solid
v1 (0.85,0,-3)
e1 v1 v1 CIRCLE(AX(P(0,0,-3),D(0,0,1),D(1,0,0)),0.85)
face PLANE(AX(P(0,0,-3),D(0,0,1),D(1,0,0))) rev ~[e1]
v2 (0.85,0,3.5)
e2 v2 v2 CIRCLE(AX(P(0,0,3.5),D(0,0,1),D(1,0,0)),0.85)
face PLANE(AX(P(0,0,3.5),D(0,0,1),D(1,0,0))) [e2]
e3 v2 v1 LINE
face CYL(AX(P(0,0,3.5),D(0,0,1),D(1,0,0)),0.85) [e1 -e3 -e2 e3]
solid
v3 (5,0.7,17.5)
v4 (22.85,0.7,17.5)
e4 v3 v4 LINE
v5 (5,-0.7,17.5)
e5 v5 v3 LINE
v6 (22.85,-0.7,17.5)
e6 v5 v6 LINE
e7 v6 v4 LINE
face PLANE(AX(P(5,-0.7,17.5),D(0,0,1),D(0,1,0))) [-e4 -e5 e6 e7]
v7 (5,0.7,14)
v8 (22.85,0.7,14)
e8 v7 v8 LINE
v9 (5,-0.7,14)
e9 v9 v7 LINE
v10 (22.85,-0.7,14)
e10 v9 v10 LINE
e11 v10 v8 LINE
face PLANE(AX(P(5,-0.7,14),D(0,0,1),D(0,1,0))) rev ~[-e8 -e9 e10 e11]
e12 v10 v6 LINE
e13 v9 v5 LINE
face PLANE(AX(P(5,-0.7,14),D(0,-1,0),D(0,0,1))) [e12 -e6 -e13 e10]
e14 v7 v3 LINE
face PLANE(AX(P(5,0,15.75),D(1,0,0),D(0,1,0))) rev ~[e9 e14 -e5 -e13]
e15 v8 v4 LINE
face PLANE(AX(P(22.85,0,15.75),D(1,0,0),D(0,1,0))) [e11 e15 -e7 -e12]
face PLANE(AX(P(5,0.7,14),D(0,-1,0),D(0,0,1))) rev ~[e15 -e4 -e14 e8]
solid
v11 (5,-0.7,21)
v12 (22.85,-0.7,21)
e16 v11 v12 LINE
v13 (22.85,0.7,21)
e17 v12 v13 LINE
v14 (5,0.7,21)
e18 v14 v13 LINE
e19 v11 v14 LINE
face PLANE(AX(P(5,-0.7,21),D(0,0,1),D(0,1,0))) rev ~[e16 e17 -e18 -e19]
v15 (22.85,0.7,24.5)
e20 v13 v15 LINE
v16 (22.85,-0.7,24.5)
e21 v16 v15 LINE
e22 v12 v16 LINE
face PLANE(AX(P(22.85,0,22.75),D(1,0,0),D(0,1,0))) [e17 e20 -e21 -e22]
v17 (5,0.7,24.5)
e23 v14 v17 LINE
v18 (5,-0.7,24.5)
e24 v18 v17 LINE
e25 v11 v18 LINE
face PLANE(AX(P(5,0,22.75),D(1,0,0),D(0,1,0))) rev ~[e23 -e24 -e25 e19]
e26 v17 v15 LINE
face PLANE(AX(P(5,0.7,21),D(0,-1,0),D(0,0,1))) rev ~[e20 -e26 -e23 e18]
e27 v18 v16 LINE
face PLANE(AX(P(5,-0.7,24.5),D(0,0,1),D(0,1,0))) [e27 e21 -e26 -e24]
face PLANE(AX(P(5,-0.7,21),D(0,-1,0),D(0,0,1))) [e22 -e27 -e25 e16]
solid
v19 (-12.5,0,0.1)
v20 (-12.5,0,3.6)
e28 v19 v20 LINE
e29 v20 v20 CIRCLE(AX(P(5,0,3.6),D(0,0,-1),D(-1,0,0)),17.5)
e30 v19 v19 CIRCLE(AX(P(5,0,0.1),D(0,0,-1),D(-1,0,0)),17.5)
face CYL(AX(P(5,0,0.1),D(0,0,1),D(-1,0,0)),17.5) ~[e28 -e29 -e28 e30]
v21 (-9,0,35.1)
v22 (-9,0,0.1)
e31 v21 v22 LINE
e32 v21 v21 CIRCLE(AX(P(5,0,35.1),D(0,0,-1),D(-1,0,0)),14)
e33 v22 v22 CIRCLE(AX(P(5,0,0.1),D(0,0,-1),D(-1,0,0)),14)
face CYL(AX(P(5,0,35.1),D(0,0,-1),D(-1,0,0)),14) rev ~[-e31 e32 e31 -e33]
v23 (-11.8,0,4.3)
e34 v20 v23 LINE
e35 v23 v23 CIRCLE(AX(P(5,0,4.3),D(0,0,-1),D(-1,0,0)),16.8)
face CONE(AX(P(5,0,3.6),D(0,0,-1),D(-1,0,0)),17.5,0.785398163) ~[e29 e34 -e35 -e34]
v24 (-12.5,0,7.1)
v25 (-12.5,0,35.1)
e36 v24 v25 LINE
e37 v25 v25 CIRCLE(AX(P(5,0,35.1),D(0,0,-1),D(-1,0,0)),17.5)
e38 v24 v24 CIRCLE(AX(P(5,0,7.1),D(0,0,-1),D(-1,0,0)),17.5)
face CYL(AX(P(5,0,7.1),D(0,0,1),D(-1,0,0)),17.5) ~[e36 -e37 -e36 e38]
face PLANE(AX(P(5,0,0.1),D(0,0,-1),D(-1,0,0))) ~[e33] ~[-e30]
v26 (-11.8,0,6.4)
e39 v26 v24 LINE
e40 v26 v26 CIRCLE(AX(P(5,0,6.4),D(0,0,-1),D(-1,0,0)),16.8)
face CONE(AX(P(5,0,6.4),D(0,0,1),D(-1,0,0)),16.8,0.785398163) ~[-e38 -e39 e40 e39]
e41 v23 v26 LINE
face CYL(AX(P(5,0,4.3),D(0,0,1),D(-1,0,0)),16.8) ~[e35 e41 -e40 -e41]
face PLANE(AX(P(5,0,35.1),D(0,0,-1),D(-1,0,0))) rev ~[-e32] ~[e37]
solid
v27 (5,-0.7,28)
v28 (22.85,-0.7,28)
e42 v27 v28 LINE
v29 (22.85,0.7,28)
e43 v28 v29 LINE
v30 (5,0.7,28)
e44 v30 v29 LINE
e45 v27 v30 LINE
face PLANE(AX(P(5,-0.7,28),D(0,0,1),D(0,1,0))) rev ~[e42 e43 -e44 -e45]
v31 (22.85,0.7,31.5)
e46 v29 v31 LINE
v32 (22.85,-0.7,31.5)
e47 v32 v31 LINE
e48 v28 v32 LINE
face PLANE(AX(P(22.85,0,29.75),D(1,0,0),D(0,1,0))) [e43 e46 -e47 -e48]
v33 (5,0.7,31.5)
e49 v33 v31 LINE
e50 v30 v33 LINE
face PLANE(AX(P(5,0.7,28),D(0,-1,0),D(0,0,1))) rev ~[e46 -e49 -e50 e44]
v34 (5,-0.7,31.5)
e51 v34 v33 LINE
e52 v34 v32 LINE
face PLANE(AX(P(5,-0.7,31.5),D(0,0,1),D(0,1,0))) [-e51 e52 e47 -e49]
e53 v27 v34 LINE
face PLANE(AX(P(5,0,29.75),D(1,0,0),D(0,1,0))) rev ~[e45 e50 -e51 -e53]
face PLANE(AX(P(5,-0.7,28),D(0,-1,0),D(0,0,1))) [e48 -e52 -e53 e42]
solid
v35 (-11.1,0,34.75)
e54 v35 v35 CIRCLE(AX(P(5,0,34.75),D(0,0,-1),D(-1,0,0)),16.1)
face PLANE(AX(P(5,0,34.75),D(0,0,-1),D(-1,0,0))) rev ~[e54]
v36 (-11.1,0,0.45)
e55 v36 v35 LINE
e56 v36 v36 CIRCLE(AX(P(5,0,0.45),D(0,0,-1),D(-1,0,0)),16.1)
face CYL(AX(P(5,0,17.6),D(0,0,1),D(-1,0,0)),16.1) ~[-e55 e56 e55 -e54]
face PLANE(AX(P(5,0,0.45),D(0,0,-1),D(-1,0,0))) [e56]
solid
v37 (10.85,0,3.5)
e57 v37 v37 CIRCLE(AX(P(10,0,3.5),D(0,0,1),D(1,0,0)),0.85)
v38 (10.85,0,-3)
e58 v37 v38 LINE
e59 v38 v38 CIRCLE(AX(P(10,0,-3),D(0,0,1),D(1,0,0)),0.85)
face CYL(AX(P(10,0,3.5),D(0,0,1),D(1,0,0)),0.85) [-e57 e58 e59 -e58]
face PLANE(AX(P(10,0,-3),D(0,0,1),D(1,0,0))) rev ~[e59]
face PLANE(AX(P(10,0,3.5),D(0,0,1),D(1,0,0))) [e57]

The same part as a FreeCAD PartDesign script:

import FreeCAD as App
import Part
import Sketcher

V = App.Vector
Q = App.Units.Quantity


def add_polygon(sketch, points):
    """Adds a closed chain of lines whose ends are joined by coincident constraints."""
    first, n = sketch.GeometryCount, len(points)
    for a, b in zip(points, points[1:] + points[:1]):
        sketch.addGeometry(Part.LineSegment(App.Vector(*a, 0), App.Vector(*b, 0)), False)
    for i in range(n):
        sketch.addConstraint(Sketcher.Constraint("Coincident", first + i, 2, first + (i + 1) % n, 1))

doc = App.newDocument("Part")
body = doc.addObject("PartDesign::Body", "Body")

# Sketch on XZ plane
sketch1 = body.newObject("Sketcher::SketchObject", "Sketch")
sketch1.AttachmentSupport = (doc.getObject("XZ_Plane"), [""])
sketch1.MapMode = "FlatFace"
add_polygon(sketch1, [(-12.5, 3.6), (-12.5, 0.1), (-9, 0.1), (-9, 35.1), (-12.5, 35.1), (-12.5, 7.1), (-11.8, 6.4), (-11.8, 4.3)])  # lines 0-7
sketch1.addGeometry(Part.LineSegment(V(5, 35.1, 0), V(5, 0.1, 0)), True)  # axis
sketch1.addConstraint(Sketcher.Constraint("Vertical", 0))
sketch1.addConstraint(Sketcher.Constraint("Horizontal", 1))
sketch1.addConstraint(Sketcher.Constraint("Vertical", 2))
sketch1.addConstraint(Sketcher.Constraint("Horizontal", 3))
sketch1.addConstraint(Sketcher.Constraint("Vertical", 4))
sketch1.addConstraint(Sketcher.Constraint("Vertical", 6))
sketch1.addConstraint(Sketcher.Constraint("Vertical", 8))
sketch1.addConstraint(Sketcher.Constraint("Perpendicular", 5, 7))
sketch1.addConstraint(Sketcher.Constraint("Horizontal", 3, 2, 8, 1))
sketch1.addConstraint(Sketcher.Constraint("Horizontal", 1, 2, 8, 2))
sketch1.addConstraint(Sketcher.Constraint("Vertical", 0, 2, 3, 2))
sketch1.addConstraint(Sketcher.Constraint("Equal", 3, 0))
sketch1.addConstraint(Sketcher.Constraint("Equal", 5, 7))
sketch1.addConstraint(Sketcher.Constraint("DistanceY", 2, 1, 2, 2, Q("35 mm")))
sketch1.addConstraint(Sketcher.Constraint("DistanceY", 4, 2, 4, 1, Q("28 mm")))
sketch1.addConstraint(Sketcher.Constraint("DistanceX", 1, 1, 1, 2, Q("3.5 mm")))
sketch1.addConstraint(Sketcher.Constraint("DistanceY", 6, 2, 6, 1, Q("2.1 mm")))
sketch1.addConstraint(Sketcher.Constraint("DistanceX", 1, 2, -1, 1, Q("9 mm")))
sketch1.addConstraint(Sketcher.Constraint("DistanceX", -1, 1, 8, 1, Q("5 mm")))
sketch1.addConstraint(Sketcher.Constraint("DistanceY", -1, 1, 0, 2, Q("0.1 mm")))
revolution = body.newObject("PartDesign::Revolution", "Revolution")
revolution.Profile = sketch1
revolution.ReferenceAxis = (sketch1, ["Axis0"])
revolution.Angle = 360
body2 = doc.addObject("PartDesign::Body", "Body001")

# Sketch on XZ plane
sketch2 = body2.newObject("Sketcher::SketchObject", "Sketch001")
sketch2.AttachmentSupport = (doc.getObject("XZ_Plane001"), [""])
sketch2.MapMode = "FlatFace"
add_polygon(sketch2, [(-11, 35), (-11, 0), (5, 0), (5, 35)])  # lines 0-3
sketch2.addGeometry(Part.LineSegment(V(5, 35, 0), V(5, 0, 0)), True)  # axis
sketch2.addConstraint(Sketcher.Constraint("Vertical", 0))
sketch2.addConstraint(Sketcher.Constraint("Horizontal", 1))
sketch2.addConstraint(Sketcher.Constraint("Vertical", 2))
sketch2.addConstraint(Sketcher.Constraint("Horizontal", 3))
sketch2.addConstraint(Sketcher.Constraint("Vertical", 4))
sketch2.addConstraint(Sketcher.Constraint("Coincident", 4, 1, 2, 2))
sketch2.addConstraint(Sketcher.Constraint("Horizontal", 0, 2, 4, 2))
sketch2.addConstraint(Sketcher.Constraint("DistanceX", 1, 1, 1, 2, Q("16.1 mm")))
sketch2.addConstraint(Sketcher.Constraint("DistanceY", 0, 2, 0, 1, Q("34.3 mm")))
sketch2.addConstraint(Sketcher.Constraint("DistanceX", -1, 1, 1, 2, Q("5 mm")))
sketch2.addConstraint(Sketcher.Constraint("DistanceY", -1, 1, 0, 2, Q("0.45 mm")))
revolution2 = body2.newObject("PartDesign::Revolution", "Revolution001")
revolution2.Profile = sketch2
revolution2.ReferenceAxis = (sketch2, ["Axis0"])
revolution2.Angle = 360
body3 = doc.addObject("PartDesign::Body", "Body002")
body3.AllowCompound = True

# Sketch on XY plane
sketch3 = body3.newObject("Sketcher::SketchObject", "Sketch002")
sketch3.AttachmentSupport = (doc.getObject("XY_Plane002"), [""])
sketch3.MapMode = "FlatFace"
sketch3.AttachmentOffset = App.Placement(V(0, 0, 3.5), App.Rotation())
sketch3.addGeometry(Part.Circle(V(0, 0, 0), V(0, 0, 1), 0.8), False)
sketch3.addGeometry(Part.Circle(V(10, 0, 0), V(0, 0, 1), 0.8), False)
sketch3.addConstraint(Sketcher.Constraint("Coincident", 0, 3, -1, 1))
sketch3.addConstraint(Sketcher.Constraint("Equal", 0, 1))
sketch3.addConstraint(Sketcher.Constraint("PointOnObject", 1, 3, -1))
sketch3.addConstraint(Sketcher.Constraint("Diameter", 0, Q("1.7 mm")))
sketch3.addConstraint(Sketcher.Constraint("DistanceX", -1, 1, 1, 3, Q("10 mm")))
pad1 = body3.newObject("PartDesign::Pad", "Pad")
pad1.Profile = sketch3
pad1.Length = 6.5
pad1.Reversed = True
body4 = doc.addObject("PartDesign::Body", "Body003")
body4.AllowCompound = True

# Sketch on YZ plane
sketch4 = body4.newObject("Sketcher::SketchObject", "Sketch003")
sketch4.AttachmentSupport = (doc.getObject("YZ_Plane003"), [""])
sketch4.MapMode = "FlatFace"
sketch4.AttachmentOffset = App.Placement(V(0, 0, 5), App.Rotation())
add_polygon(sketch4, [(-0.7, 17.5), (-0.7, 14), (0.7, 14), (0.7, 17.5)])  # lines 0-3
add_polygon(sketch4, [(-0.7, 24.5), (-0.7, 21), (0.7, 21), (0.7, 24.5)])  # lines 4-7
add_polygon(sketch4, [(-0.7, 31.5), (-0.7, 28), (0.7, 28), (0.7, 31.5)])  # lines 8-11
sketch4.addConstraint(Sketcher.Constraint("Vertical", 0))
sketch4.addConstraint(Sketcher.Constraint("Horizontal", 1))
sketch4.addConstraint(Sketcher.Constraint("Vertical", 2))
sketch4.addConstraint(Sketcher.Constraint("Horizontal", 3))
sketch4.addConstraint(Sketcher.Constraint("Vertical", 4))
sketch4.addConstraint(Sketcher.Constraint("Horizontal", 5))
sketch4.addConstraint(Sketcher.Constraint("Vertical", 6))
sketch4.addConstraint(Sketcher.Constraint("Horizontal", 7))
sketch4.addConstraint(Sketcher.Constraint("Vertical", 8))
sketch4.addConstraint(Sketcher.Constraint("Horizontal", 9))
sketch4.addConstraint(Sketcher.Constraint("Vertical", 10))
sketch4.addConstraint(Sketcher.Constraint("Horizontal", 11))
sketch4.addConstraint(Sketcher.Constraint("Vertical", 3, 2, 4, 2))
sketch4.addConstraint(Sketcher.Constraint("Vertical", 2, 2, 5, 2))
sketch4.addConstraint(Sketcher.Constraint("Vertical", 7, 2, 8, 2))
sketch4.addConstraint(Sketcher.Constraint("Vertical", 6, 2, 9, 2))
sketch4.addConstraint(Sketcher.Constraint("Equal", 2, 4))
sketch4.addConstraint(Sketcher.Constraint("Equal", 6, 8))
sketch4.addConstraint(Sketcher.Constraint("DistanceX", 1, 1, 1, 2, Q("1.4 mm")))
sketch4.addConstraint(Sketcher.Constraint("DistanceY", 0, 2, 0, 1, Q("3.5 mm")))
sketch4.addConstraint(Sketcher.Constraint("DistanceY", -1, 1, 0, 2, Q("14 mm")))
sketch4.addConstraint(Sketcher.Constraint("DistanceY", -1, 1, 4, 2, Q("21 mm")))
sketch4.addConstraint(Sketcher.Constraint("DistanceY", -1, 1, 8, 2, Q("28 mm")))
sketch4.addConstraint(Sketcher.Constraint("DistanceX", 0, 2, -1, 1, Q("0.7 mm")))
pad2 = body4.newObject("PartDesign::Pad", "Pad001")
pad2.Profile = sketch4
pad2.Length = 17.85

doc.recompute()
